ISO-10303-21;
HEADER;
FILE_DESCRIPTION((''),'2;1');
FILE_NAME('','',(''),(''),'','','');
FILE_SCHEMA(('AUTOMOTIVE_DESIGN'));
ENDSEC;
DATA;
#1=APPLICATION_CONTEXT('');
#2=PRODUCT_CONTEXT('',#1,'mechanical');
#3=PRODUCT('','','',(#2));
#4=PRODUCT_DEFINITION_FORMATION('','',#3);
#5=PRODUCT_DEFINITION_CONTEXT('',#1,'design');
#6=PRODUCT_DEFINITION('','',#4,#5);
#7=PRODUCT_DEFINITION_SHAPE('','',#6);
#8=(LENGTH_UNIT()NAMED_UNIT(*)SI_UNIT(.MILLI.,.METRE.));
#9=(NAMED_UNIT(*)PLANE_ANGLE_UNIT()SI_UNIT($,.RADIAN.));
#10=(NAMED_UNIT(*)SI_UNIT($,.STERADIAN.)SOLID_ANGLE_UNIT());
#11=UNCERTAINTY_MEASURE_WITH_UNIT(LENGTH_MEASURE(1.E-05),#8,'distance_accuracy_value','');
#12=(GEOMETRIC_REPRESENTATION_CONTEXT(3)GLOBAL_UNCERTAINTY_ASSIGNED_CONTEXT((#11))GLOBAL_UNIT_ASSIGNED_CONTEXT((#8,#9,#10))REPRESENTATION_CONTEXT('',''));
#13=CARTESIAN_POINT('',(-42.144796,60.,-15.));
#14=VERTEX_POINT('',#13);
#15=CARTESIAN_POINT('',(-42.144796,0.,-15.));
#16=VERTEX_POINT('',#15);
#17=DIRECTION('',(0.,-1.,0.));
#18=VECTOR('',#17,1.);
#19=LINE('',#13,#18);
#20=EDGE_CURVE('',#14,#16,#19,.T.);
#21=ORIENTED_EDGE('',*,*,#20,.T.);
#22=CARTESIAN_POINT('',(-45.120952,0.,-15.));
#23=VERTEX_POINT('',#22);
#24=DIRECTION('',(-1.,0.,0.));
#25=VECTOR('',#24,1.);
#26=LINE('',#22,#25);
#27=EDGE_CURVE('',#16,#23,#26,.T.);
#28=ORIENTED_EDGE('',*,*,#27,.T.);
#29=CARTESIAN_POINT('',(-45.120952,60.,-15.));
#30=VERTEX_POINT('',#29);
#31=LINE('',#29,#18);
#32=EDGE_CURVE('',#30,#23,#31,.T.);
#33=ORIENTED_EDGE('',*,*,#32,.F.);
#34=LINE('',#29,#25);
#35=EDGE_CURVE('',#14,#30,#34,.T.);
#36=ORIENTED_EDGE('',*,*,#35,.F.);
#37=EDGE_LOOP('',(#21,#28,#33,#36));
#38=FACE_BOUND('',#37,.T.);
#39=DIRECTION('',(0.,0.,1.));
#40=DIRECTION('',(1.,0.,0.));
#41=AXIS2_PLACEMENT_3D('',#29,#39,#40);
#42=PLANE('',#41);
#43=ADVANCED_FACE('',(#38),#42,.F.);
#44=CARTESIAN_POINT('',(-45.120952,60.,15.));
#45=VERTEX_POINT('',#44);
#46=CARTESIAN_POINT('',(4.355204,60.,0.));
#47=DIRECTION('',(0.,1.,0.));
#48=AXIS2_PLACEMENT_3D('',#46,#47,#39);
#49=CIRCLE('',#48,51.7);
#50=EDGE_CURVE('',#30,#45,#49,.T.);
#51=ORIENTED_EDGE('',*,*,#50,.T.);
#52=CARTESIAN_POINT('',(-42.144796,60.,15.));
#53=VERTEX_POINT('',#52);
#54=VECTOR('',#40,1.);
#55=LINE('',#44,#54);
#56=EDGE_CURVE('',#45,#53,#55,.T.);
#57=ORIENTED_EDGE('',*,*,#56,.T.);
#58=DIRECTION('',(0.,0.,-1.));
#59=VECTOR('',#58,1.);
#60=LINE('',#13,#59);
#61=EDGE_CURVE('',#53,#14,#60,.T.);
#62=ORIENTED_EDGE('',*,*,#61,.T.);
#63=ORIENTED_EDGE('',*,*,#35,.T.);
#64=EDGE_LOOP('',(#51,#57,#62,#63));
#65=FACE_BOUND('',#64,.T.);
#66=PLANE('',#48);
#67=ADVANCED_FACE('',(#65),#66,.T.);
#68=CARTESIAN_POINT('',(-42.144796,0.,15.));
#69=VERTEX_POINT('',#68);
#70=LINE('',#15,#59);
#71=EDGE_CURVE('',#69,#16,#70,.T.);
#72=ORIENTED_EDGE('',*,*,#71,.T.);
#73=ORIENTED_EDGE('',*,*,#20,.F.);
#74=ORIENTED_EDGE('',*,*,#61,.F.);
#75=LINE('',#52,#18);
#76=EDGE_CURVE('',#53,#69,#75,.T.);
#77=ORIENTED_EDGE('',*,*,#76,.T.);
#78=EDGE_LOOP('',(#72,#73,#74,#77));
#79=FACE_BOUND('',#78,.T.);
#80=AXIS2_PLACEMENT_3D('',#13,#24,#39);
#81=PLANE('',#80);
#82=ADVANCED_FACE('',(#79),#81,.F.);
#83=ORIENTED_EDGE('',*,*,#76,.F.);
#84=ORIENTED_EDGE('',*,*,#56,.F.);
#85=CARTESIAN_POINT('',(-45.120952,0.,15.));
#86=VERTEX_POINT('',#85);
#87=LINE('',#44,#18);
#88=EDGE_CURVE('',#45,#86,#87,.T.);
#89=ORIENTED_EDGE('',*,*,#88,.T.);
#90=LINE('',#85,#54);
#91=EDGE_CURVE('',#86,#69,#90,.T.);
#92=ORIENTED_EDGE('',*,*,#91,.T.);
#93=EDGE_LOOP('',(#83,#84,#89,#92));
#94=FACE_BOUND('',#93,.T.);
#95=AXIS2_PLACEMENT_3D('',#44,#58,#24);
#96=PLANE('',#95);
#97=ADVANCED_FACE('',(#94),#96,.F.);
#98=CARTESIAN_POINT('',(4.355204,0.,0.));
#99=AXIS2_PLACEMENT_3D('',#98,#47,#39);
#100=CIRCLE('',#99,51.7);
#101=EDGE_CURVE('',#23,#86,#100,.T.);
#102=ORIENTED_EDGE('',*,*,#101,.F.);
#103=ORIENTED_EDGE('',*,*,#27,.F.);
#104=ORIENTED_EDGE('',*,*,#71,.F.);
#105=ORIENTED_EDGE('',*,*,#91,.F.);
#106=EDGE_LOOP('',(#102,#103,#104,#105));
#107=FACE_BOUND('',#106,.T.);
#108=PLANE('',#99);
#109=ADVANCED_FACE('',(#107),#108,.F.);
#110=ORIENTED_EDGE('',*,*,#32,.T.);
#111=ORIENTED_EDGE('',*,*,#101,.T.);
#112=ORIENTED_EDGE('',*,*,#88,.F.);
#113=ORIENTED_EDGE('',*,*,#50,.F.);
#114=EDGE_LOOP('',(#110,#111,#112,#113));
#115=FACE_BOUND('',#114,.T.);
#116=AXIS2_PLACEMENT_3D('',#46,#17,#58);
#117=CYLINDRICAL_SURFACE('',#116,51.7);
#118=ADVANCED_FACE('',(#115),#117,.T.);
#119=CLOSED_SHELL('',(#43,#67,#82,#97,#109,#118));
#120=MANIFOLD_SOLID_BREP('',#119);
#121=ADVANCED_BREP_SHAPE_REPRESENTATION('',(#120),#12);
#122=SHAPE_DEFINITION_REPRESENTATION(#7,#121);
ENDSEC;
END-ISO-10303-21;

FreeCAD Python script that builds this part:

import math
import FreeCAD as App
import Part
import Sketcher

doc = App.newDocument("Part")
body = doc.addObject("PartDesign::Body", "Body")

sketch1 = body.newObject("Sketcher::SketchObject", "Sketch")
sketch1.AttachmentSupport = (doc.getObject("XZ_Plane"), [""])
sketch1.MapMode = "FlatFace"
sketch1.addGeometry([
    Part.LineSegment(App.Vector(-42.1, -15, 0), App.Vector(-45.1, -15, 0)),
    Part.ArcOfCircle(Part.Circle(App.Vector(4.4, 0, 0), App.Vector(0, 0, 1), 51.7), math.radians(163), math.radians(197)),
    Part.LineSegment(App.Vector(-45.1, 15, 0), App.Vector(-42.1, 15, 0)),
    Part.LineSegment(App.Vector(-42.1, 15, 0), App.Vector(-42.1, -15, 0)),
], False)
sketch1.addConstraint([
    Sketcher.Constraint("Coincident", 0, 2, 1, 2),
    Sketcher.Constraint("Coincident", 1, 1, 2, 1),
    Sketcher.Constraint("Coincident", 2, 2, 3, 1),
    Sketcher.Constraint("Coincident", 3, 2, 0, 1),
    Sketcher.Constraint("Horizontal", 0),
    Sketcher.Constraint("Horizontal", 2),
    Sketcher.Constraint("Vertical", 3),
    Sketcher.Constraint("Symmetric", 0, 2, 1, 1, -1),
    Sketcher.Constraint("Radius", 1, 51.7),
    Sketcher.Constraint("DistanceY", 3, 2, 3, 1, 30.0),
    Sketcher.Constraint("DistanceX", 2, 2, 1, 3, 46.5),
    Sketcher.Constraint("DistanceX", 0, 2, -1, 1, 45.120952),
])
pad1 = body.newObject("PartDesign::Pad", "Pad")
pad1.Profile = sketch1
pad1.Length = 60
pad1.Reversed = True

doc.recompute()
